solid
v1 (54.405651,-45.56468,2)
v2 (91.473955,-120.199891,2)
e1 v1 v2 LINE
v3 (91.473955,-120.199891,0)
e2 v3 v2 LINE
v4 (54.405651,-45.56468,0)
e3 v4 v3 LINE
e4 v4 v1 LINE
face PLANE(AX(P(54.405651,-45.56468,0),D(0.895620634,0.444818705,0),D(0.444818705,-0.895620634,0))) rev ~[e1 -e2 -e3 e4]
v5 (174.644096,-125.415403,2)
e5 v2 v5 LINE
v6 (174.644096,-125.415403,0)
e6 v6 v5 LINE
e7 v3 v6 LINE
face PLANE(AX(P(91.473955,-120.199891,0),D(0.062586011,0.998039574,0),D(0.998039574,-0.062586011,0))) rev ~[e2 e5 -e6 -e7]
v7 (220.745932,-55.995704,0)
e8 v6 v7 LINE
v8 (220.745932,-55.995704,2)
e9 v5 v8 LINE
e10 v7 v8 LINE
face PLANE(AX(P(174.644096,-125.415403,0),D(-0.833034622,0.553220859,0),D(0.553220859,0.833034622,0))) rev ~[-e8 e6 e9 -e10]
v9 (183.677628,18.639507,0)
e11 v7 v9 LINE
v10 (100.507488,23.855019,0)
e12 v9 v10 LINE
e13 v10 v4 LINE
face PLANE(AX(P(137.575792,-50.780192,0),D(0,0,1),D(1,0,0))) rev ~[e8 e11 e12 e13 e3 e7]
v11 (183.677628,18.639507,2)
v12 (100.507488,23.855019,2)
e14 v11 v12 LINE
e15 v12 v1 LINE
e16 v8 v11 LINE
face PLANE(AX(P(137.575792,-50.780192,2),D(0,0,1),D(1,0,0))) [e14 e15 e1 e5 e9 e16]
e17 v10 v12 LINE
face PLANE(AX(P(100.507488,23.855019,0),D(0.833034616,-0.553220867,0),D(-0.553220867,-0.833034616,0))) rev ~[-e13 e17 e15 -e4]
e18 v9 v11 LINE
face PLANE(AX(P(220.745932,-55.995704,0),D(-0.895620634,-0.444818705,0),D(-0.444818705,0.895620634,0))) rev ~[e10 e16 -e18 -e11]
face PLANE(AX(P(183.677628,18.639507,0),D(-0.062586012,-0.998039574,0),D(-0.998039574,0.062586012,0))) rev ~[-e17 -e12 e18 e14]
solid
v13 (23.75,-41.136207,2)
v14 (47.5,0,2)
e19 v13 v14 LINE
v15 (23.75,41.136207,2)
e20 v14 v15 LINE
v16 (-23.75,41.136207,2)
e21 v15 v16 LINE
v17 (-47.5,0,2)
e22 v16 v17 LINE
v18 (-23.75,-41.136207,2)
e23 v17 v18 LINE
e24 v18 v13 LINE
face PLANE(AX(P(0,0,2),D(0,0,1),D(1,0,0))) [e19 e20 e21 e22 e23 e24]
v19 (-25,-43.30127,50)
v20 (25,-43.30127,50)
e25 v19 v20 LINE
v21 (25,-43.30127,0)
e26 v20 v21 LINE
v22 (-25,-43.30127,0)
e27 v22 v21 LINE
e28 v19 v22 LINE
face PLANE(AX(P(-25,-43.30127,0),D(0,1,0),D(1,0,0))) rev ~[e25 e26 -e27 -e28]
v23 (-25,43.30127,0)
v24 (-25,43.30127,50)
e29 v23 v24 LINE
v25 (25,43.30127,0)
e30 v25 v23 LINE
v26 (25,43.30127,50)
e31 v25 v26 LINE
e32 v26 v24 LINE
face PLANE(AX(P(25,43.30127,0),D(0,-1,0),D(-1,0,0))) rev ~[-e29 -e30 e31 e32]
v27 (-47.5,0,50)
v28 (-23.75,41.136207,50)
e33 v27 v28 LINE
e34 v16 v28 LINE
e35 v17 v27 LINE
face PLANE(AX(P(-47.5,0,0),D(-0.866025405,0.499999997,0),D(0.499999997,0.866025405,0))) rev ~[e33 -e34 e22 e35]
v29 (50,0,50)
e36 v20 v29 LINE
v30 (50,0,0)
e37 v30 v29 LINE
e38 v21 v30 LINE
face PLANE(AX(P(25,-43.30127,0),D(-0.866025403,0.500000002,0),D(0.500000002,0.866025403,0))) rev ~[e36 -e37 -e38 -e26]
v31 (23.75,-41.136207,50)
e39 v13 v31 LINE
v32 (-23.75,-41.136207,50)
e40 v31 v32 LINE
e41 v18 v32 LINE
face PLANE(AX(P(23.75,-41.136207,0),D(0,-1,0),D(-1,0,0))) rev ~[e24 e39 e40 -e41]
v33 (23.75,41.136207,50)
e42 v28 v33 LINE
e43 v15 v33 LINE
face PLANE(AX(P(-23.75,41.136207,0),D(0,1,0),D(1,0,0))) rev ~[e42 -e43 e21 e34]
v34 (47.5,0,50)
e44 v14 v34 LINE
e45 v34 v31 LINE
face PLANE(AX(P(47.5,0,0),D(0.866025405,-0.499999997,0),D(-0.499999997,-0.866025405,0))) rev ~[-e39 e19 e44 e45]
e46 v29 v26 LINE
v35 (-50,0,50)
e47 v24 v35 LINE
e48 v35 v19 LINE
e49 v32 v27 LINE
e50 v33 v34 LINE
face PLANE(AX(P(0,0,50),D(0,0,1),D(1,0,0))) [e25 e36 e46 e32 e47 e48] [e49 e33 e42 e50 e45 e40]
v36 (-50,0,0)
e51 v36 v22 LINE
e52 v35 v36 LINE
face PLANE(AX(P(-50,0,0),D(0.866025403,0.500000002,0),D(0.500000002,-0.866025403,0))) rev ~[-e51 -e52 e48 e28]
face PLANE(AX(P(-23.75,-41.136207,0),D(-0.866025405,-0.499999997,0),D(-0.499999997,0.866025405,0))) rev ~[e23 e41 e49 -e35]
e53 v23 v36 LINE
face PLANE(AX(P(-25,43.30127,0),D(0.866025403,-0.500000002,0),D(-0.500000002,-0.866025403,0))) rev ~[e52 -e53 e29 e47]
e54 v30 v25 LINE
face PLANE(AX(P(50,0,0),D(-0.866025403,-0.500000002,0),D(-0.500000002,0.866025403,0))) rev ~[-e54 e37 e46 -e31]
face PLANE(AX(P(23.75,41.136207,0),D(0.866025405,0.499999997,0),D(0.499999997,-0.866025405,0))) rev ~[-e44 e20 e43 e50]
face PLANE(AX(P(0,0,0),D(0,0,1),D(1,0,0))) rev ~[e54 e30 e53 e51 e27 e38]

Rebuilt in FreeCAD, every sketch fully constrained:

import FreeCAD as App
import Part
import Sketcher

V = App.Vector
Q = App.Units.Quantity

doc = App.newDocument("Part")
body = doc.addObject("PartDesign::Body", "Body")

# Sketch on XY plane
sketch1 = body.newObject("Sketcher::SketchObject", "Sketch")
sketch1.AttachmentSupport = (doc.getObject("XY_Plane"), [""])
sketch1.MapMode = "FlatFace"
sketch1.addGeometry(Part.LineSegment(V(25, -43, 0), V(50, 0, 0)), False)
sketch1.addGeometry(Part.LineSegment(V(50, 0, 0), V(25, 43, 0)), False)
sketch1.addGeometry(Part.LineSegment(V(25, 43, 0), V(-25, 43, 0)), False)
sketch1.addGeometry(Part.LineSegment(V(-25, 43, 0), V(-50, 0, 0)), False)
sketch1.addGeometry(Part.LineSegment(V(-50, 0, 0), V(-25, -43, 0)), False)
sketch1.addGeometry(Part.LineSegment(V(-25, -43, 0), V(25, -43, 0)), False)
sketch1.addConstraint(Sketcher.Constraint("Coincident", 0, 2, 1, 1))
sketch1.addConstraint(Sketcher.Constraint("Coincident", 1, 2, 2, 1))
sketch1.addConstraint(Sketcher.Constraint("Coincident", 2, 2, 3, 1))
sketch1.addConstraint(Sketcher.Constraint("Coincident", 3, 2, 4, 1))
sketch1.addConstraint(Sketcher.Constraint("Coincident", 4, 2, 5, 1))
sketch1.addConstraint(Sketcher.Constraint("Coincident", 5, 2, 0, 1))
sketch1.addConstraint(Sketcher.Constraint("Horizontal", 2))
sketch1.addConstraint(Sketcher.Constraint("Horizontal", 5))
sketch1.addConstraint(Sketcher.Constraint("Symmetric", 0, 2, 3, 2, -1, 1))
sketch1.addConstraint(Sketcher.Constraint("Symmetric", 1, 2, 4, 2, -1, 1))
sketch1.addConstraint(Sketcher.Constraint("PointOnObject", 0, 2, -1))
sketch1.addConstraint(Sketcher.Constraint("Parallel", 0, 3))
sketch1.addConstraint(Sketcher.Constraint("Vertical", 2, 2, 4, 2))
sketch1.addConstraint(Sketcher.Constraint("DistanceX", 2, 2, 2, 1, 50.0))
sketch1.addConstraint(Sketcher.Constraint("Angle", 0, Q("60 deg")))
sketch1.addConstraint(Sketcher.Constraint("Distance", 0, 50.0))
pad1 = body.newObject("PartDesign::Pad", "Pad")
pad1.Profile = sketch1
pad1.Length = 2

# Sketch on XY plane
sketch2 = body.newObject("Sketcher::SketchObject", "Sketch001")
sketch2.AttachmentSupport = (doc.getObject("XY_Plane"), [""])
sketch2.MapMode = "FlatFace"
sketch2.addGeometry(Part.LineSegment(V(25, -43, 0), V(50, 0, 0)), False)
sketch2.addGeometry(Part.LineSegment(V(50, 0, 0), V(25, 43, 0)), False)
sketch2.addGeometry(Part.LineSegment(V(25, 43, 0), V(-25, 43, 0)), False)
sketch2.addGeometry(Part.LineSegment(V(-25, 43, 0), V(-50, 0, 0)), False)
sketch2.addGeometry(Part.LineSegment(V(-50, 0, 0), V(-25, -43, 0)), False)
sketch2.addGeometry(Part.LineSegment(V(-25, -43, 0), V(25, -43, 0)), False)
sketch2.addGeometry(Part.LineSegment(V(-24, -41, 0), V(-48, 0, 0)), False)
sketch2.addGeometry(Part.LineSegment(V(-48, 0, 0), V(-24, 41, 0)), False)
sketch2.addGeometry(Part.LineSegment(V(-24, 41, 0), V(24, 41, 0)), False)
sketch2.addGeometry(Part.LineSegment(V(24, 41, 0), V(48, 0, 0)), False)
sketch2.addGeometry(Part.LineSegment(V(48, 0, 0), V(24, -41, 0)), False)
sketch2.addGeometry(Part.LineSegment(V(24, -41, 0), V(-24, -41, 0)), False)
sketch2.addConstraint(Sketcher.Constraint("Coincident", 0, 2, 1, 1))
sketch2.addConstraint(Sketcher.Constraint("Coincident", 1, 2, 2, 1))
sketch2.addConstraint(Sketcher.Constraint("Coincident", 2, 2, 3, 1))
sketch2.addConstraint(Sketcher.Constraint("Coincident", 3, 2, 4, 1))
sketch2.addConstraint(Sketcher.Constraint("Coincident", 4, 2, 5, 1))
sketch2.addConstraint(Sketcher.Constraint("Coincident", 5, 2, 0, 1))
sketch2.addConstraint(Sketcher.Constraint("Coincident", 6, 2, 7, 1))
sketch2.addConstraint(Sketcher.Constraint("Coincident", 7, 2, 8, 1))
sketch2.addConstraint(Sketcher.Constraint("Coincident", 8, 2, 9, 1))
sketch2.addConstraint(Sketcher.Constraint("Coincident", 9, 2, 10, 1))
sketch2.addConstraint(Sketcher.Constraint("Coincident", 10, 2, 11, 1))
sketch2.addConstraint(Sketcher.Constraint("Coincident", 11, 2, 6, 1))
sketch2.addConstraint(Sketcher.Constraint("Horizontal", 2))
sketch2.addConstraint(Sketcher.Constraint("Horizontal", 5))
sketch2.addConstraint(Sketcher.Constraint("Horizontal", 8))
sketch2.addConstraint(Sketcher.Constraint("Horizontal", 11))
sketch2.addConstraint(Sketcher.Constraint("Symmetric", 0, 2, 3, 2, -1, 1))
sketch2.addConstraint(Sketcher.Constraint("Symmetric", 1, 2, 4, 2, -1, 1))
sketch2.addConstraint(Sketcher.Constraint("Symmetric", 6, 2, 9, 2, -1, 1))
sketch2.addConstraint(Sketcher.Constraint("Symmetric", 7, 2, 10, 2, -1, 1))
sketch2.addConstraint(Sketcher.Constraint("PointOnObject", 0, 2, -1))
sketch2.addConstraint(Sketcher.Constraint("PointOnObject", 6, 2, -1))
sketch2.addConstraint(Sketcher.Constraint("Parallel", 0, 3))
sketch2.addConstraint(Sketcher.Constraint("Parallel", 4, 6))
sketch2.addConstraint(Sketcher.Constraint("Parallel", 3, 7))
sketch2.addConstraint(Sketcher.Constraint("Parallel", 6, 9))
sketch2.addConstraint(Sketcher.Constraint("Vertical", 2, 2, 4, 2))
sketch2.addConstraint(Sketcher.Constraint("DistanceX", 2, 2, 2, 1, 50.0))
sketch2.addConstraint(Sketcher.Constraint("Angle", 0, Q("60 deg")))
sketch2.addConstraint(Sketcher.Constraint("Distance", 0, 50.0))
sketch2.addConstraint(Sketcher.Constraint("DistanceX", 8, 1, 8, 2, 47.5))
sketch2.addConstraint(Sketcher.Constraint("Distance", 6, 47.5))
pad2 = body.newObject("PartDesign::Pad", "Pad001")
pad2.Profile = sketch2
pad2.Length = 50
body2 = doc.addObject("PartDesign::Body", "Body001")

# Sketch on XY plane
sketch3 = body2.newObject("Sketcher::SketchObject", "Sketch002")
sketch3.AttachmentSupport = (doc.getObject("XY_Plane001"), [""])
sketch3.MapMode = "FlatFace"
sketch3.addGeometry(Part.LineSegment(V(175, -125, 0), V(221, -56, 0)), False)
sketch3.addGeometry(Part.LineSegment(V(221, -56, 0), V(184, 19, 0)), False)
sketch3.addGeometry(Part.LineSegment(V(184, 19, 0), V(101, 24, 0)), False)
sketch3.addGeometry(Part.LineSegment(V(101, 24, 0), V(54, -46, 0)), False)
sketch3.addGeometry(Part.LineSegment(V(54, -46, 0), V(91, -120, 0)), False)
sketch3.addGeometry(Part.LineSegment(V(91, -120, 0), V(175, -125, 0)), False)
sketch3.addConstraint(Sketcher.Constraint("Coincident", 0, 2, 1, 1))
sketch3.addConstraint(Sketcher.Constraint("Coincident", 1, 2, 2, 1))
sketch3.addConstraint(Sketcher.Constraint("Coincident", 2, 2, 3, 1))
sketch3.addConstraint(Sketcher.Constraint("Coincident", 3, 2, 4, 1))
sketch3.addConstraint(Sketcher.Constraint("Coincident", 4, 2, 5, 1))
sketch3.addConstraint(Sketcher.Constraint("Coincident", 5, 2, 0, 1))
sketch3.addConstraint(Sketcher.Constraint("Parallel", 0, 3))
sketch3.addConstraint(Sketcher.Constraint("Parallel", 1, 4))
sketch3.addConstraint(Sketcher.Constraint("Parallel", 2, 5))
sketch3.addConstraint(Sketcher.Constraint("Equal", 0, 1))
sketch3.addConstraint(Sketcher.Constraint("Equal", 1, 2))
sketch3.addConstraint(Sketcher.Constraint("Equal", 2, 3))
sketch3.addConstraint(Sketcher.Constraint("DistanceY", 3, 2, 2, 2, 69.419699))
sketch3.addConstraint(Sketcher.Constraint("Distance", 0, 83.33351))
sketch3.addConstraint(Sketcher.Constraint("DistanceX", -1, 1, 1, 2, 183.677628))
sketch3.addConstraint(Sketcher.Constraint("DistanceY", -1, 1, 2, 2, 23.855019))
sketch3.addConstraint(Sketcher.Constraint("DistanceX", -1, 1, 3, 2, 54.405651))
sketch3.addConstraint(Sketcher.Constraint("DistanceY", 4, 2, -1, 1, 120.199891))
pad3 = body2.newObject("PartDesign::Pad", "Pad002")
pad3.Profile = sketch3
pad3.Length = 2

doc.recompute()
